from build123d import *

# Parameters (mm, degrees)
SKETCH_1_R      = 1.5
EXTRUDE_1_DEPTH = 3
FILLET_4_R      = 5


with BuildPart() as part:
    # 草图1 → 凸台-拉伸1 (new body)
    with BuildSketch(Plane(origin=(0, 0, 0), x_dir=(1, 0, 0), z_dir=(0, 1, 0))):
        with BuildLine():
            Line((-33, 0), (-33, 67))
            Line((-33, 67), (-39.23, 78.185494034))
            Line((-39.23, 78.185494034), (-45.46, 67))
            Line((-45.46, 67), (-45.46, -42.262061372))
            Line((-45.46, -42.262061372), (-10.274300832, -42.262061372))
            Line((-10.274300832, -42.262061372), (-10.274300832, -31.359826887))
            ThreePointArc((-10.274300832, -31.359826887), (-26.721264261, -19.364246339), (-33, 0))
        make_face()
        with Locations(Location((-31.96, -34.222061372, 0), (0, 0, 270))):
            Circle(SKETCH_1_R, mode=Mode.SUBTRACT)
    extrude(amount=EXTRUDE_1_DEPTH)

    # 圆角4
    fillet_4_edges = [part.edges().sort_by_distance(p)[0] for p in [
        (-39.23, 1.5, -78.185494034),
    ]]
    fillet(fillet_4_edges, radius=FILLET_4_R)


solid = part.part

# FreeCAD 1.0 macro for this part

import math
import FreeCAD as App
import Part
import Sketcher
from FreeCAD import Vector


def edges_at(feature, points):
    """Names of the edges that pass closest to the given points."""
    edges = feature.Shape.Edges
    near = lambda p: min(range(len(edges)), key=lambda i: edges[i].distToShape(Part.Vertex(*p))[0])
    return sorted({f"Edge{near(p) + 1}" for p in points})

doc = App.newDocument("Part")
body = doc.addObject("PartDesign::Body", "Body")

# Sketch on XZ plane
sketch1 = body.newObject("Sketcher::SketchObject", "Sketch")
sketch1.AttachmentSupport = (doc.getObject("XZ_Plane"), [""])
sketch1.MapMode = "FlatFace"
sketch1.addGeometry(Part.LineSegment(Vector(-33, 0, 0), Vector(-33, -67, 0)), False)
sketch1.addGeometry(Part.LineSegment(Vector(-33, -67, 0), Vector(-39.23, -78.185494, 0)), False)
sketch1.addGeometry(Part.LineSegment(Vector(-39.23, -78.185494, 0), Vector(-45.46, -67, 0)), False)
sketch1.addGeometry(Part.LineSegment(Vector(-45.46, -67, 0), Vector(-45.46, 42.262061, 0)), False)
sketch1.addGeometry(Part.LineSegment(Vector(-45.46, 42.262061, 0), Vector(-10.274301, 42.262061, 0)), False)
sketch1.addGeometry(Part.LineSegment(Vector(-10.274301, 42.262061, 0), Vector(-10.274301, 31.359827, 0)), False)
sketch1.addGeometry(Part.ArcOfCircle(Part.Circle(Vector(0, 0, 0), Vector(0, 0, 1), 33), math.radians(108.140151), math.radians(180)), False)
sketch1.addGeometry(Part.Circle(Vector(-31.96, 34.222061, 0), Vector(0, 0, 1), 1.5), False)
sketch1.addConstraint(Sketcher.Constraint("Coincident", 0, 2, 1, 1))
sketch1.addConstraint(Sketcher.Constraint("Coincident", 1, 2, 2, 1))
sketch1.addConstraint(Sketcher.Constraint("Coincident", 2, 2, 3, 1))
sketch1.addConstraint(Sketcher.Constraint("Coincident", 3, 2, 4, 1))
sketch1.addConstraint(Sketcher.Constraint("Coincident", 4, 2, 5, 1))
sketch1.addConstraint(Sketcher.Constraint("Coincident", 5, 2, 6, 1))
sketch1.addConstraint(Sketcher.Constraint("Tangent", 6, 2, 0, 1))
sketch1.addConstraint(Sketcher.Constraint("Vertical", 0))
sketch1.addConstraint(Sketcher.Constraint("Vertical", 3))
sketch1.addConstraint(Sketcher.Constraint("Horizontal", 4))
sketch1.addConstraint(Sketcher.Constraint("Vertical", 5))
sketch1.addConstraint(Sketcher.Constraint("Coincident", 6, 3, -1, 1))
sketch1.addConstraint(Sketcher.Constraint("Horizontal", 0, 2, 2, 2))
sketch1.addConstraint(Sketcher.Constraint("Equal", 1, 2))
sketch1.addConstraint(Sketcher.Constraint("Diameter", 7, 3.0))
sketch1.addConstraint(Sketcher.Constraint("Radius", 6, 33.0))
sketch1.addConstraint(Sketcher.Constraint("DistanceY", 0, 2, 0, 1, 67.0))
sketch1.addConstraint(Sketcher.Constraint("DistanceX", 2, 2, 7, 3, 13.5))
sketch1.addConstraint(Sketcher.Constraint("DistanceX", 7, 3, -1, 1, 31.96))
sketch1.addConstraint(Sketcher.Constraint("DistanceY", 7, 3, 3, 2, 8.04))
sketch1.addConstraint(Sketcher.Constraint("DistanceX", 4, 1, 4, 2, 35.185699))
sketch1.addConstraint(Sketcher.Constraint("DistanceY", 3, 1, 3, 2, 109.262061))
sketch1.addConstraint(Sketcher.Constraint("Distance", 1, 12.803444))
pad1 = body.newObject("PartDesign::Pad", "Pad")
pad1.Profile = sketch1
pad1.Length = 3
pad1.Reversed = True
doc.recompute()

fillet = body.newObject("PartDesign::Fillet", "Fillet")
fillet.Base = (pad1, edges_at(pad1, [(-39.23, 1.5, -78.185)]))
fillet.Radius = 5

doc.recompute()
